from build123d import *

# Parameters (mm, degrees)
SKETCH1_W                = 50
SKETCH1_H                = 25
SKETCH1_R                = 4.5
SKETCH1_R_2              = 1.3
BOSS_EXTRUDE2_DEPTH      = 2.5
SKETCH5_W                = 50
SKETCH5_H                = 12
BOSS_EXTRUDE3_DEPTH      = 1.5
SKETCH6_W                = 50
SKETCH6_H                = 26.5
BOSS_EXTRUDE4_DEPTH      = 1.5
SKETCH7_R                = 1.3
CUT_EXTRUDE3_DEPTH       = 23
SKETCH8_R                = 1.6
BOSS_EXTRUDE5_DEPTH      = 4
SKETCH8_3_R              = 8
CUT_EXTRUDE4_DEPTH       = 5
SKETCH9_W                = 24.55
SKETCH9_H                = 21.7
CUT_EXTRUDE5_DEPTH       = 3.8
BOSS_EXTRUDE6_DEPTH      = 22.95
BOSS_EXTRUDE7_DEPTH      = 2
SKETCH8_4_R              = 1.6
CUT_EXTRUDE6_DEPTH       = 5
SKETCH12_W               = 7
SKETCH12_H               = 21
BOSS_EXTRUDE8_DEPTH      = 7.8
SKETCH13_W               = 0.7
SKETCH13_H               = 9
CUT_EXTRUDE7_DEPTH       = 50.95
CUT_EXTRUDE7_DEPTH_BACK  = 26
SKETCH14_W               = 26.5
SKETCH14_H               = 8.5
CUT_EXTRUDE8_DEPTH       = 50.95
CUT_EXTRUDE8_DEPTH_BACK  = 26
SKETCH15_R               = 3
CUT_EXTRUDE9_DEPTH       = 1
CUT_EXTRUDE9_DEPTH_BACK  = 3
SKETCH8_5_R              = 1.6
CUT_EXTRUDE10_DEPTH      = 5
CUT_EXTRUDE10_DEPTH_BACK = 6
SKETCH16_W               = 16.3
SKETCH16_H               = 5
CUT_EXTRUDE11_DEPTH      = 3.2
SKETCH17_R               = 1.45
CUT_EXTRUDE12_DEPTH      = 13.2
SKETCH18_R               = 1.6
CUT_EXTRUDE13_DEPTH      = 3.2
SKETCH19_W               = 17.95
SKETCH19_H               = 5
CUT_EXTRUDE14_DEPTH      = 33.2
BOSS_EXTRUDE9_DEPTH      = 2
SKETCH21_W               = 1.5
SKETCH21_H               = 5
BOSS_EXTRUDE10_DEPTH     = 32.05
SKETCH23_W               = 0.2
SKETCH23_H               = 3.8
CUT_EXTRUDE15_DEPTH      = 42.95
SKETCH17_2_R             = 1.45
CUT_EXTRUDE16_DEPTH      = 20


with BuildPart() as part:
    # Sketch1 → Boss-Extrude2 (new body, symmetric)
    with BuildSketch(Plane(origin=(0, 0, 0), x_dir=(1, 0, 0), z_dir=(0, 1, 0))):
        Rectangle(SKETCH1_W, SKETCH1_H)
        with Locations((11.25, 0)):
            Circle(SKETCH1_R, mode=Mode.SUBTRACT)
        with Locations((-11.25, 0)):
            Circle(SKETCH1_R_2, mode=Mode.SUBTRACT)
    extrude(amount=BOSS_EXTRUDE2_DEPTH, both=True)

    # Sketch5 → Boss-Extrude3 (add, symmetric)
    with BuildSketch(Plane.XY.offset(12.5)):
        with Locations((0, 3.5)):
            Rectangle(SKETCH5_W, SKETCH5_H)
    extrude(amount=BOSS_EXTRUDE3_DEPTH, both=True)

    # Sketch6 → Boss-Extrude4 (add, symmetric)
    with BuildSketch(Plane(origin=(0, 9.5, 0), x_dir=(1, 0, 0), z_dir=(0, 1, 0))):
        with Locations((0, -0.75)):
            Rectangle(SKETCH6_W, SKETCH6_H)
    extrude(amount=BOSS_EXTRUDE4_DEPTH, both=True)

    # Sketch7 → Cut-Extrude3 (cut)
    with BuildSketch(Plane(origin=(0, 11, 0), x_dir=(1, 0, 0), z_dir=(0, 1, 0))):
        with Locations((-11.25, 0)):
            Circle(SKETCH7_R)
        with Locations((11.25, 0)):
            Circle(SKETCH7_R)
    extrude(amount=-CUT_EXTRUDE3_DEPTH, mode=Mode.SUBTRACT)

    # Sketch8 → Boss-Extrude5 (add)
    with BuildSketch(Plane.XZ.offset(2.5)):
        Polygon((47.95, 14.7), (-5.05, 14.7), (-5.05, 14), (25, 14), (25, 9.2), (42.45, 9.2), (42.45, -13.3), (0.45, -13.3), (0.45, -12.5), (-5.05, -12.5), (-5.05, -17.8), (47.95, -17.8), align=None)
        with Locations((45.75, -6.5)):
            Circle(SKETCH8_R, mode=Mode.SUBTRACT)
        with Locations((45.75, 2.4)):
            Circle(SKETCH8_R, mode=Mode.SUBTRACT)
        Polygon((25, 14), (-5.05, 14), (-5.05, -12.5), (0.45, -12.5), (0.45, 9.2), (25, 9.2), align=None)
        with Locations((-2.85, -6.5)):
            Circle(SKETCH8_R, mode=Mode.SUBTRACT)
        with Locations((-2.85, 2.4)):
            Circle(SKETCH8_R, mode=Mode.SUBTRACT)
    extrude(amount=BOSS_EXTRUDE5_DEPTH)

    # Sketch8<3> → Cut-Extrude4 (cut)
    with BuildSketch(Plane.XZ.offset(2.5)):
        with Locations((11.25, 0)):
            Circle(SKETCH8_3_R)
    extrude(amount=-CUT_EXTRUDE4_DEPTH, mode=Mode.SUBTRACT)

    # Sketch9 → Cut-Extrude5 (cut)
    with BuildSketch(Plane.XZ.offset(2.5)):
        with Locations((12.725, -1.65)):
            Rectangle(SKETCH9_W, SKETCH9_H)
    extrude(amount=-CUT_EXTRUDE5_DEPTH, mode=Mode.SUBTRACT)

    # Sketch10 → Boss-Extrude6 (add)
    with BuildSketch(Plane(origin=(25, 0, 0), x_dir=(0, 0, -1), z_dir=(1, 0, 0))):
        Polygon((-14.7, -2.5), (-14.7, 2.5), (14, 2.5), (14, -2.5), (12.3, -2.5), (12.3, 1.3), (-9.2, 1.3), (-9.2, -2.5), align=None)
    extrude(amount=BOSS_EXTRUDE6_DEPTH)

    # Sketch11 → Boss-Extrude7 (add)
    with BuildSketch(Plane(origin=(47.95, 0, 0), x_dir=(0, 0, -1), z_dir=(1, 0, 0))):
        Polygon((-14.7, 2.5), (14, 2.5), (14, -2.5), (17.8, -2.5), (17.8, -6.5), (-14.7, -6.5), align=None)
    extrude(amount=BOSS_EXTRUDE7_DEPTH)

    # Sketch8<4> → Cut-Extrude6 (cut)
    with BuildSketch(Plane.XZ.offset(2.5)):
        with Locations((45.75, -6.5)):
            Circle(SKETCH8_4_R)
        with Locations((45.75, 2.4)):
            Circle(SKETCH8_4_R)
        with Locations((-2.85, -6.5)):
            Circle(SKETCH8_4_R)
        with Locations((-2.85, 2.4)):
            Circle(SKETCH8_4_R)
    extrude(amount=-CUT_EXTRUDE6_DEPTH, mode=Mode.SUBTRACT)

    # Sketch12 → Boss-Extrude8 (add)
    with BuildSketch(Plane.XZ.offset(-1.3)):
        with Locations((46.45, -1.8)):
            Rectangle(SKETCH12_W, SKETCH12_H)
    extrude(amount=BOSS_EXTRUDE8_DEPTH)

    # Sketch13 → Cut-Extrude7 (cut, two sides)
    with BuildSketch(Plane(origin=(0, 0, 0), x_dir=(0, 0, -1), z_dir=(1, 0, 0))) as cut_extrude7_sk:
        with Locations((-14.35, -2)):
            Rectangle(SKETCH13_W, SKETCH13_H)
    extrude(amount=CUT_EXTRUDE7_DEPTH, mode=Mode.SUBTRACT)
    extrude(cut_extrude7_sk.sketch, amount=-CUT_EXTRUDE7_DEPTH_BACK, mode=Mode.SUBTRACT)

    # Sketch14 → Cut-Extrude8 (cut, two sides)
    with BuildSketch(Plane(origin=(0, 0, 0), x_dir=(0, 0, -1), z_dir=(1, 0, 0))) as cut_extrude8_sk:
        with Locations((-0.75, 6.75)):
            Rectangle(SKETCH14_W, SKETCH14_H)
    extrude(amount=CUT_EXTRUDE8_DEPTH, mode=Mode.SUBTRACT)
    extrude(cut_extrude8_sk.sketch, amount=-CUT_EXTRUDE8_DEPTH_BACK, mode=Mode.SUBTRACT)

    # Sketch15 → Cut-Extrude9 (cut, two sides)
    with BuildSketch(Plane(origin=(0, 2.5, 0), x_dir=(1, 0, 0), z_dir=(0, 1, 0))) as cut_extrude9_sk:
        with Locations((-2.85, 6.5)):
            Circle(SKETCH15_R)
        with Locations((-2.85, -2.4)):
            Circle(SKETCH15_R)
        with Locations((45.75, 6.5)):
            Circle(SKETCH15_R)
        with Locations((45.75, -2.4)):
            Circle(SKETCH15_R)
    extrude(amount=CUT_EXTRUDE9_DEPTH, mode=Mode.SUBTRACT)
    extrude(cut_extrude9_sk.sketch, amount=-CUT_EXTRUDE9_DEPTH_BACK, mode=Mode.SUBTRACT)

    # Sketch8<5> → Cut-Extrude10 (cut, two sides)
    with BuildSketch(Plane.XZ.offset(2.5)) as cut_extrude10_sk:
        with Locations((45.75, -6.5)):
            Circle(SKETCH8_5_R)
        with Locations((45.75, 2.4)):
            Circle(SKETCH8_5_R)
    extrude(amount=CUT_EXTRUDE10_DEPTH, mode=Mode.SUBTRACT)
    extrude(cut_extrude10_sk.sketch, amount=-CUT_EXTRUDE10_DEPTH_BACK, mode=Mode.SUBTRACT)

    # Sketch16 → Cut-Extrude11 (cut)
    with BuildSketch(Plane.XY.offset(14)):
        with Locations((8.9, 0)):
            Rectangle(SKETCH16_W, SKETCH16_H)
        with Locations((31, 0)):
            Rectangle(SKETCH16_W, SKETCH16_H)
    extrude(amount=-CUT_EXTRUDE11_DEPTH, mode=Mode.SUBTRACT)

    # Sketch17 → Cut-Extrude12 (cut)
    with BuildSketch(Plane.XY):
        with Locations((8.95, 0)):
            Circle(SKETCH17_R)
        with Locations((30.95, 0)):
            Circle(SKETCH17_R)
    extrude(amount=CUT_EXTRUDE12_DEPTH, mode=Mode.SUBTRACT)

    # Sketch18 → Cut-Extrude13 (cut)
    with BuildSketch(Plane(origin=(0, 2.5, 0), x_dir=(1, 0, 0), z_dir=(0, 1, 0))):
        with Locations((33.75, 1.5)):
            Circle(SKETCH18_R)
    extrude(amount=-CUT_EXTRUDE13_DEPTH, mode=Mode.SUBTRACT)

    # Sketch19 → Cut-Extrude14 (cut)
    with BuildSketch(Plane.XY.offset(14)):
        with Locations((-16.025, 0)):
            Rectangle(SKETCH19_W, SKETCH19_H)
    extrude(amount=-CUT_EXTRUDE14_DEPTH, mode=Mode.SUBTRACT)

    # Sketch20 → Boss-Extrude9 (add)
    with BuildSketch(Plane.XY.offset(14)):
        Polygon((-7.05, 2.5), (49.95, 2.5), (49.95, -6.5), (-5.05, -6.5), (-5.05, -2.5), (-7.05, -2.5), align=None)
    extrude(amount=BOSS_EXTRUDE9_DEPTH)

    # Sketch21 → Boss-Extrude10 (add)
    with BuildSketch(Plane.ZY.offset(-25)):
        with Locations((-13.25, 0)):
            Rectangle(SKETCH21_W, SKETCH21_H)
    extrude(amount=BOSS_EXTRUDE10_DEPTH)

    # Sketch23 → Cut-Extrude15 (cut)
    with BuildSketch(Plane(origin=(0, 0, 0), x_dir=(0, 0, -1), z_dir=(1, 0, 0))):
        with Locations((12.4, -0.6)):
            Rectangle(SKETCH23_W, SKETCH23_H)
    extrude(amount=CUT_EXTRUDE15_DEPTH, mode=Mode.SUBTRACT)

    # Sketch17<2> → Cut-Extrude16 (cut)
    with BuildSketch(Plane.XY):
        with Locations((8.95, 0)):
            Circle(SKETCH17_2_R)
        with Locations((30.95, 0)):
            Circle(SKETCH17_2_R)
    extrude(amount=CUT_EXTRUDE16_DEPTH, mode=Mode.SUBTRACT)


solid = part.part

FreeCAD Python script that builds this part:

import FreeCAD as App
import Part
import Sketcher
Q = App.Units.Quantity

doc = App.newDocument("Part")
params = doc.addObject("Spreadsheet::Sheet", "Params")
for row, (alias, value) in enumerate([
    ("sketch1_diameter", "9 mm"),
    ("sketch1_diameter2", "2.6 mm"),
    ("sketch1_width", "50 mm"),
    ("sketch1_height", "25 mm"),
    ("pad1_length", "5 mm"),
    ("sketch2_width", "50 mm"),
    ("sketch2_height", "12 mm"),
    ("pad2_length", "3 mm"),
    ("sketch3_width", "50 mm"),
    ("sketch3_height", "26.5 mm"),
    ("pad3_length", "3 mm"),
    ("sketch4_diameter", "2.6 mm"),
    ("pocket1_length", "23 mm"),
    ("sketch5_diameter", "3.2 mm"),
    ("sketch5_width", "53 mm"),
    ("sketch5_width2", "42 mm"),
    ("sketch5_height", "32.5 mm"),
    ("sketch5_height2", "22.5 mm"),
    ("pad4_length", "4 mm"),
    ("sketch6_diameter", "16 mm"),
    ("pocket2_length", "5 mm"),
    ("sketch7_height", "21.7 mm"),
    ("sketch7_width", "24.55 mm"),
    ("pocket3_length", "3.8 mm"),
    ("sketch8_width", "5 mm"),
    ("sketch8_width2", "3.8 mm"),
    ("sketch8_height", "5.5 mm"),
    ("sketch8_height2", "21.5 mm"),
    ("sketch8_height3", "1.7 mm"),
    ("pad5_length", "22.95 mm"),
    ("sketch9_width", "9 mm"),
    ("sketch9_width2", "4 mm"),
    ("sketch9_height", "28.7 mm"),
    ("sketch9_height2", "32.5 mm"),
    ("pad6_length", "2 mm"),
    ("sketch10_diameter", "3.2 mm"),
    ("pocket4_length", "5 mm"),
    ("sketch11_width", "7 mm"),
    ("sketch11_height", "21 mm"),
    ("pad7_length", "7.8 mm"),
    ("sketch12_width", "9 mm"),
    ("sketch12_height", "0.7 mm"),
    ("sketch13_width", "8.5 mm"),
    ("sketch13_height", "26.5 mm"),
    ("sketch14_diameter", "6 mm"),
    ("pocket7_length", "1 mm"),
    ("pocket7_length2", "3 mm"),
    ("sketch15_diameter", "3.2 mm"),
    ("sketch16_height", "5 mm"),
    ("sketch16_width", "16.3 mm"),
    ("pocket9_length", "3.2 mm"),
    ("sketch17_diameter", "2.9 mm"),
    ("pocket10_length", "13.2 mm"),
    ("sketch18_diameter", "3.2 mm"),
    ("pocket11_length", "3.2 mm"),
    ("sketch19_height", "5 mm"),
    ("sketch19_width", "17.95 mm"),
    ("pocket12_length", "33.2 mm"),
    ("sketch20_width", "57 mm"),
    ("sketch20_width2", "2 mm"),
    ("sketch20_height", "5 mm"),
    ("sketch20_height2", "4 mm"),
    ("pad8_length", "2 mm"),
    ("sketch21_width", "5 mm"),
    ("sketch21_height", "1.5 mm"),
    ("pad9_length", "32.05 mm"),
    ("sketch22_width", "3.8 mm"),
    ("sketch22_height", "0.2 mm"),
    ("pocket13_length", "42.95 mm"),
    ("sketch23_diameter", "2.9 mm"),
    ("pocket14_length", "20 mm"),
], start=1):
    params.set(f"A{row}", alias)
    params.set(f"B{row}", "=" + value)
    params.setAlias(f"B{row}", alias)

body = doc.addObject("PartDesign::Body", "Body")

# Sketch on XZ plane
sketch1 = body.newObject("Sketcher::SketchObject", "Sketch")
sketch1.AttachmentSupport = (doc.getObject("XZ_Plane"), [""])
sketch1.MapMode = "FlatFace"
sketch1.addGeometry([
    Part.LineSegment(App.Vector(-25, -12.5, 0), App.Vector(-25, 12.5, 0)),  # 0
    Part.LineSegment(App.Vector(-25, 12.5, 0), App.Vector(25, 12.5, 0)),  # 1
    Part.LineSegment(App.Vector(25, 12.5, 0), App.Vector(25, -12.5, 0)),  # 2
    Part.LineSegment(App.Vector(25, -12.5, 0), App.Vector(-25, -12.5, 0)),  # 3
    Part.Circle(App.Vector(-11.25, 0, 0), App.Vector(0, 0, 1), 1.3),  # 4
    Part.Circle(App.Vector(11.25, 0, 0), App.Vector(0, 0, 1), 4.5),  # 5
], False)
sketch1.addConstraint([
    Sketcher.Constraint("Coincident", 0, 2, 1, 1),
    Sketcher.Constraint("Coincident", 1, 2, 2, 1),
    Sketcher.Constraint("Coincident", 2, 2, 3, 1),
    Sketcher.Constraint("Coincident", 3, 2, 0, 1),
    Sketcher.Constraint("Vertical", 0),
    Sketcher.Constraint("Horizontal", 1),
    Sketcher.Constraint("Vertical", 2),
    Sketcher.Constraint("Horizontal", 3),
    Sketcher.Constraint("Symmetric", 4, 3, 5, 3, -1, 1),
    Sketcher.Constraint("Symmetric", 0, 2, 2, 2, -1, 1),
    Sketcher.Constraint("PointOnObject", 4, 3, -1),
    Sketcher.Constraint("Diameter", 5, Q("9 mm")),
    Sketcher.Constraint("Diameter", 4, Q("2.6 mm")),
    Sketcher.Constraint("DistanceX", 1, 1, 1, 2, Q("50 mm")),
    Sketcher.Constraint("DistanceY", 0, 1, 0, 2, Q("25 mm")),
    Sketcher.Constraint("DistanceX", 4, 3, 5, 3, Q("22.5 mm")),
])
sketch1.setExpression("Constraints[11]", "Params.sketch1_diameter")
sketch1.setExpression("Constraints[12]", "Params.sketch1_diameter2")
sketch1.setExpression("Constraints[13]", "Params.sketch1_width")
sketch1.setExpression("Constraints[14]", "Params.sketch1_height")
pad1 = body.newObject("PartDesign::Pad", "Pad")
pad1.Profile = sketch1
pad1.setExpression("Length", "Params.pad1_length")
pad1.Midplane = True

# Sketch on XY plane
sketch2 = body.newObject("Sketcher::SketchObject", "Sketch001")
sketch2.AttachmentSupport = (doc.getObject("XY_Plane"), [""])
sketch2.MapMode = "FlatFace"
sketch2.AttachmentOffset = App.Placement(App.Vector(0, 0, 12.5), App.Rotation())
sketch2.addGeometry([
    Part.LineSegment(App.Vector(-25, 9.5, 0), App.Vector(-25, -2.5, 0)),
    Part.LineSegment(App.Vector(-25, -2.5, 0), App.Vector(25, -2.5, 0)),
    Part.LineSegment(App.Vector(25, -2.5, 0), App.Vector(25, 9.5, 0)),
    Part.LineSegment(App.Vector(25, 9.5, 0), App.Vector(-25, 9.5, 0)),
], False)
sketch2.addConstraint([
    Sketcher.Constraint("Coincident", 0, 2, 1, 1),
    Sketcher.Constraint("Coincident", 1, 2, 2, 1),
    Sketcher.Constraint("Coincident", 2, 2, 3, 1),
    Sketcher.Constraint("Coincident", 3, 2, 0, 1),
    Sketcher.Constraint("Vertical", 0),
    Sketcher.Constraint("Horizontal", 1),
    Sketcher.Constraint("Vertical", 2),
    Sketcher.Constraint("Horizontal", 3),
    Sketcher.Constraint("DistanceX", 1, 1, 1, 2, Q("50 mm")),
    Sketcher.Constraint("DistanceY", 0, 2, 0, 1, Q("12 mm")),
    Sketcher.Constraint("DistanceX", 0, 2, -1, 1, Q("25 mm")),
    Sketcher.Constraint("DistanceY", 0, 2, -1, 1, Q("2.5 mm")),
])
sketch2.setExpression("Constraints[8]", "Params.sketch2_width")
sketch2.setExpression("Constraints[9]", "Params.sketch2_height")
pad2 = body.newObject("PartDesign::Pad", "Pad001")
pad2.Profile = sketch2
pad2.setExpression("Length", "Params.pad2_length")
pad2.Midplane = True

# Sketch on XZ plane
sketch3 = body.newObject("Sketcher::SketchObject", "Sketch002")
sketch3.AttachmentSupport = (doc.getObject("XZ_Plane"), [""])
sketch3.MapMode = "FlatFace"
sketch3.AttachmentOffset = App.Placement(App.Vector(0, 0, -9.5), App.Rotation())
sketch3.addGeometry([
    Part.LineSegment(App.Vector(-25, -12.5, 0), App.Vector(-25, 14, 0)),
    Part.LineSegment(App.Vector(-25, 14, 0), App.Vector(25, 14, 0)),
    Part.LineSegment(App.Vector(25, 14, 0), App.Vector(25, -12.5, 0)),
    Part.LineSegment(App.Vector(25, -12.5, 0), App.Vector(-25, -12.5, 0)),
], False)
sketch3.addConstraint([
    Sketcher.Constraint("Coincident", 0, 2, 1, 1),
    Sketcher.Constraint("Coincident", 1, 2, 2, 1),
    Sketcher.Constraint("Coincident", 2, 2, 3, 1),
    Sketcher.Constraint("Coincident", 3, 2, 0, 1),
    Sketcher.Constraint("Vertical", 0),
    Sketcher.Constraint("Horizontal", 1),
    Sketcher.Constraint("Vertical", 2),
    Sketcher.Constraint("Horizontal", 3),
    Sketcher.Constraint("DistanceX", 1, 1, 1, 2, Q("50 mm")),
    Sketcher.Constraint("DistanceY", 0, 1, 0, 2, Q("26.5 mm")),
    Sketcher.Constraint("DistanceX", 0, 2, -1, 1, Q("25 mm")),
    Sketcher.Constraint("DistanceY", -1, 1, 0, 2, Q("14 mm")),
])
sketch3.setExpression("Constraints[8]", "Params.sketch3_width")
sketch3.setExpression("Constraints[9]", "Params.sketch3_height")
pad3 = body.newObject("PartDesign::Pad", "Pad002")
pad3.Profile = sketch3
pad3.setExpression("Length", "Params.pad3_length")
pad3.Midplane = True

# Sketch on XZ plane
sketch4 = body.newObject("Sketcher::SketchObject", "Sketch003")
sketch4.AttachmentSupport = (doc.getObject("XZ_Plane"), [""])
sketch4.MapMode = "FlatFace"
sketch4.AttachmentOffset = App.Placement(App.Vector(0, 0, -11), App.Rotation())
sketch4.addGeometry([
    Part.Circle(App.Vector(-11.25, 0, 0), App.Vector(0, 0, 1), 1.3),
    Part.Circle(App.Vector(11.25, 0, 0), App.Vector(0, 0, 1), 1.3),
], False)
sketch4.addConstraint([
    Sketcher.Constraint("Equal", 0, 1),
    Sketcher.Constraint("Symmetric", 0, 3, 1, 3, -1, 1),
    Sketcher.Constraint("PointOnObject", 0, 3, -1),
    Sketcher.Constraint("Diameter", 0, Q("2.6 mm")),
    Sketcher.Constraint("DistanceX", 0, 3, 1, 3, Q("22.5 mm")),
])
sketch4.setExpression("Constraints[3]", "Params.sketch4_diameter")
pocket1 = body.newObject("PartDesign::Pocket", "Pocket")
pocket1.Profile = sketch4
pocket1.setExpression("Length", "Params.pocket1_length")
pocket1.Reversed = True

# Sketch on XZ plane
sketch5 = body.newObject("Sketcher::SketchObject", "Sketch004")
sketch5.AttachmentSupport = (doc.getObject("XZ_Plane"), [""])
sketch5.MapMode = "FlatFace"
sketch5.AttachmentOffset = App.Placement(App.Vector(0, 0, 2.5), App.Rotation())
sketch5.addGeometry([
    Part.LineSegment(App.Vector(47.95, 14.7, 0), App.Vector(-5.05, 14.7, 0)),  # 0
    Part.LineSegment(App.Vector(-5.05, 14.7, 0), App.Vector(-5.05, -17.8, 0)),  # 1
    Part.LineSegment(App.Vector(-5.05, -17.8, 0), App.Vector(47.95, -17.8, 0)),  # 2
    Part.LineSegment(App.Vector(47.95, -17.8, 0), App.Vector(47.95, 14.7, 0)),  # 3
    Part.Circle(App.Vector(-2.85, -6.5, 0), App.Vector(0, 0, 1), 1.6),  # 4
    Part.Circle(App.Vector(45.75, -6.5, 0), App.Vector(0, 0, 1), 1.6),  # 5
    Part.Circle(App.Vector(-2.85, 2.4, 0), App.Vector(0, 0, 1), 1.6),  # 6
    Part.LineSegment(App.Vector(42.45, 9.2, 0), App.Vector(42.45, -13.3, 0)),  # 7
    Part.LineSegment(App.Vector(42.45, -13.3, 0), App.Vector(0.45, -13.3, 0)),  # 8
    Part.LineSegment(App.Vector(0.45, -13.3, 0), App.Vector(0.45, 9.2, 0)),  # 9
    Part.LineSegment(App.Vector(0.45, 9.2, 0), App.Vector(42.45, 9.2, 0)),  # 10
    Part.Circle(App.Vector(45.75, 2.4, 0), App.Vector(0, 0, 1), 1.6),  # 11
], False)
sketch5.addConstraint([
    Sketcher.Constraint("Coincident", 0, 2, 1, 1),
    Sketcher.Constraint("Coincident", 1, 2, 2, 1),
    Sketcher.Constraint("Coincident", 2, 2, 3, 1),
    Sketcher.Constraint("Coincident", 3, 2, 0, 1),
    Sketcher.Constraint("Coincident", 7, 2, 8, 1),
    Sketcher.Constraint("Coincident", 8, 2, 9, 1),
    Sketcher.Constraint("Coincident", 9, 2, 10, 1),
    Sketcher.Constraint("Coincident", 10, 2, 7, 1),
    Sketcher.Constraint("Horizontal", 0),
    Sketcher.Constraint("Vertical", 1),
    Sketcher.Constraint("Horizontal", 2),
    Sketcher.Constraint("Vertical", 3),
    Sketcher.Constraint("Vertical", 7),
    Sketcher.Constraint("Horizontal", 8),
    Sketcher.Constraint("Vertical", 9),
    Sketcher.Constraint("Horizontal", 10),
    Sketcher.Constraint("Equal", 4, 5),
    Sketcher.Constraint("Equal", 5, 6),
    Sketcher.Constraint("Equal", 6, 11),
    Sketcher.Constraint("Horizontal", 4, 3, 5, 3),
    Sketcher.Constraint("Horizontal", 6, 3, 11, 3),
    Sketcher.Constraint("Vertical", 4, 3, 6, 3),
    Sketcher.Constraint("Vertical", 5, 3, 11, 3),
    Sketcher.Constraint("Diameter", 4, Q("3.2 mm")),
    Sketcher.Constraint("DistanceX", 0, 2, 0, 1, Q("53 mm")),
    Sketcher.Constraint("DistanceX", 8, 2, 8, 1, Q("42 mm")),
    Sketcher.Constraint("DistanceY", 1, 2, 1, 1, Q("32.5 mm")),
    Sketcher.Constraint("DistanceY", 7, 2, 7, 1, Q("22.5 mm")),
    Sketcher.Constraint("DistanceY", 7, 2, 3, 2, Q("28 mm")),
    Sketcher.Constraint("DistanceY", 4, 3, -1, 1, Q("6.5 mm")),
    Sketcher.Constraint("DistanceY", -1, 1, 6, 3, Q("2.4 mm")),
    Sketcher.Constraint("DistanceY", -1, 1, 0, 2, Q("14.7 mm")),
    Sketcher.Constraint("DistanceX", 4, 3, 5, 3, Q("48.6 mm")),
    Sketcher.Constraint("DistanceX", 0, 2, 6, 3, Q("2.2 mm")),
    Sketcher.Constraint("DistanceX", 7, 2, 2, 2, Q("5.5 mm")),
    Sketcher.Constraint("DistanceX", 4, 3, -1, 1, Q("2.85 mm")),
])
sketch5.setExpression("Constraints[23]", "Params.sketch5_diameter")
sketch5.setExpression("Constraints[24]", "Params.sketch5_width")
sketch5.setExpression("Constraints[25]", "Params.sketch5_width2")
sketch5.setExpression("Constraints[26]", "Params.sketch5_height")
sketch5.setExpression("Constraints[27]", "Params.sketch5_height2")
pad4 = body.newObject("PartDesign::Pad", "Pad003")
pad4.Profile = sketch5
pad4.setExpression("Length", "Params.pad4_length")

# Sketch on XZ plane
sketch6 = body.newObject("Sketcher::SketchObject", "Sketch005")
sketch6.AttachmentSupport = (doc.getObject("XZ_Plane"), [""])
sketch6.MapMode = "FlatFace"
sketch6.AttachmentOffset = App.Placement(App.Vector(0, 0, 2.5), App.Rotation())
sketch6.addGeometry(Part.Circle(App.Vector(11.25, 0, 0), App.Vector(0, 0, 1), 8), False)
sketch6.addConstraint([
    Sketcher.Constraint("PointOnObject", 0, 3, -1),
    Sketcher.Constraint("Diameter", 0, Q("16 mm")),
    Sketcher.Constraint("DistanceX", -1, 1, 0, 3, Q("11.25 mm")),
])
sketch6.setExpression("Constraints[1]", "Params.sketch6_diameter")
pocket2 = body.newObject("PartDesign::Pocket", "Pocket001")
pocket2.Profile = sketch6
pocket2.setExpression("Length", "Params.pocket2_length")

# Sketch on XZ plane
sketch7 = body.newObject("Sketcher::SketchObject", "Sketch006")
sketch7.AttachmentSupport = (doc.getObject("XZ_Plane"), [""])
sketch7.MapMode = "FlatFace"
sketch7.AttachmentOffset = App.Placement(App.Vector(0, 0, 2.5), App.Rotation())
sketch7.addGeometry([
    Part.LineSegment(App.Vector(0.45, 9.2, 0), App.Vector(0.45, -12.5, 0)),
    Part.LineSegment(App.Vector(0.45, -12.5, 0), App.Vector(25, -12.5, 0)),
    Part.LineSegment(App.Vector(25, -12.5, 0), App.Vector(25, 9.2, 0)),
    Part.LineSegment(App.Vector(25, 9.2, 0), App.Vector(0.45, 9.2, 0)),
], False)
sketch7.addConstraint([
    Sketcher.Constraint("Coincident", 0, 2, 1, 1),
    Sketcher.Constraint("Coincident", 1, 2, 2, 1),
    Sketcher.Constraint("Coincident", 2, 2, 3, 1),
    Sketcher.Constraint("Coincident", 3, 2, 0, 1),
    Sketcher.Constraint("Vertical", 0),
    Sketcher.Constraint("Horizontal", 1),
    Sketcher.Constraint("Vertical", 2),
    Sketcher.Constraint("Horizontal", 3),
    Sketcher.Constraint("DistanceY", 0, 2, 0, 1, Q("21.7 mm")),
    Sketcher.Constraint("DistanceX", -1, 1, 1, 2, Q("25 mm")),
    Sketcher.Constraint("DistanceX", 1, 1, 1, 2, Q("24.55 mm")),
    Sketcher.Constraint("DistanceY", 0, 2, -1, 1, Q("12.5 mm")),
])
sketch7.setExpression("Constraints[8]", "Params.sketch7_height")
sketch7.setExpression("Constraints[10]", "Params.sketch7_width")
pocket3 = body.newObject("PartDesign::Pocket", "Pocket002")
pocket3.Profile = sketch7
pocket3.setExpression("Length", "Params.pocket3_length")

# Sketch on YZ plane
sketch8 = body.newObject("Sketcher::SketchObject", "Sketch007")
sketch8.AttachmentSupport = (doc.getObject("YZ_Plane"), [""])
sketch8.MapMode = "FlatFace"
sketch8.AttachmentOffset = App.Placement(App.Vector(0, 0, 25), App.Rotation())
sketch8.addGeometry([
    Part.LineSegment(App.Vector(2.5, 14.7, 0), App.Vector(-2.5, 14.7, 0)),  # 0
    Part.LineSegment(App.Vector(-2.5, 14.7, 0), App.Vector(-2.5, 9.2, 0)),  # 1
    Part.LineSegment(App.Vector(-2.5, 9.2, 0), App.Vector(1.3, 9.2, 0)),  # 2
    Part.LineSegment(App.Vector(1.3, 9.2, 0), App.Vector(1.3, -12.3, 0)),  # 3
    Part.LineSegment(App.Vector(1.3, -12.3, 0), App.Vector(-2.5, -12.3, 0)),  # 4
    Part.LineSegment(App.Vector(-2.5, -12.3, 0), App.Vector(-2.5, -14, 0)),  # 5
    Part.LineSegment(App.Vector(-2.5, -14, 0), App.Vector(2.5, -14, 0)),  # 6
    Part.LineSegment(App.Vector(2.5, -14, 0), App.Vector(2.5, 14.7, 0)),  # 7
], False)
sketch8.addConstraint([
    Sketcher.Constraint("Coincident", 0, 2, 1, 1),
    Sketcher.Constraint("Coincident", 1, 2, 2, 1),
    Sketcher.Constraint("Coincident", 2, 2, 3, 1),
    Sketcher.Constraint("Coincident", 3, 2, 4, 1),
    Sketcher.Constraint("Coincident", 4, 2, 5, 1),
    Sketcher.Constraint("Coincident", 5, 2, 6, 1),
    Sketcher.Constraint("Coincident", 6, 2, 7, 1),
    Sketcher.Constraint("Coincident", 7, 2, 0, 1),
    Sketcher.Constraint("Horizontal", 0),
    Sketcher.Constraint("Vertical", 1),
    Sketcher.Constraint("Horizontal", 2),
    Sketcher.Constraint("Vertical", 3),
    Sketcher.Constraint("Horizontal", 4),
    Sketcher.Constraint("Vertical", 5),
    Sketcher.Constraint("Horizontal", 6),
    Sketcher.Constraint("Vertical", 7),
    Sketcher.Constraint("Vertical", 1, 2, 4, 2),
    Sketcher.Constraint("DistanceX", 0, 2, 0, 1, Q("5 mm")),
    Sketcher.Constraint("DistanceX", 2, 1, 2, 2, Q("3.8 mm")),
    Sketcher.Constraint("DistanceY", 1, 2, 1, 1, Q("5.5 mm")),
    Sketcher.Constraint("DistanceY", 3, 2, 3, 1, Q("21.5 mm")),
    Sketcher.Constraint("DistanceY", 5, 2, 5, 1, Q("1.7 mm")),
    Sketcher.Constraint("DistanceY", 5, 2, -1, 1, Q("14 mm")),
    Sketcher.Constraint("DistanceX", 0, 2, -1, 1, Q("2.5 mm")),
])
sketch8.setExpression("Constraints[17]", "Params.sketch8_width")
sketch8.setExpression("Constraints[18]", "Params.sketch8_width2")
sketch8.setExpression("Constraints[19]", "Params.sketch8_height")
sketch8.setExpression("Constraints[20]", "Params.sketch8_height2")
sketch8.setExpression("Constraints[21]", "Params.sketch8_height3")
pad5 = body.newObject("PartDesign::Pad", "Pad004")
pad5.Profile = sketch8
pad5.setExpression("Length", "Params.pad5_length")

# Sketch on YZ plane
sketch9 = body.newObject("Sketcher::SketchObject", "Sketch008")
sketch9.AttachmentSupport = (doc.getObject("YZ_Plane"), [""])
sketch9.MapMode = "FlatFace"
sketch9.AttachmentOffset = App.Placement(App.Vector(0, 0, 47.95), App.Rotation())
sketch9.addGeometry([
    Part.LineSegment(App.Vector(2.5, -14, 0), App.Vector(2.5, 14.7, 0)),  # 0
    Part.LineSegment(App.Vector(2.5, 14.7, 0), App.Vector(-6.5, 14.7, 0)),  # 1
    Part.LineSegment(App.Vector(-6.5, 14.7, 0), App.Vector(-6.5, -17.8, 0)),  # 2
    Part.LineSegment(App.Vector(-6.5, -17.8, 0), App.Vector(-2.5, -17.8, 0)),  # 3
    Part.LineSegment(App.Vector(-2.5, -17.8, 0), App.Vector(-2.5, -14, 0)),  # 4
    Part.LineSegment(App.Vector(-2.5, -14, 0), App.Vector(2.5, -14, 0)),  # 5
], False)
sketch9.addConstraint([
    Sketcher.Constraint("Coincident", 0, 2, 1, 1),
    Sketcher.Constraint("Coincident", 1, 2, 2, 1),
    Sketcher.Constraint("Coincident", 2, 2, 3, 1),
    Sketcher.Constraint("Coincident", 3, 2, 4, 1),
    Sketcher.Constraint("Coincident", 4, 2, 5, 1),
    Sketcher.Constraint("Coincident", 5, 2, 0, 1),
    Sketcher.Constraint("Vertical", 0),
    Sketcher.Constraint("Horizontal", 1),
    Sketcher.Constraint("Vertical", 2),
    Sketcher.Constraint("Horizontal", 3),
    Sketcher.Constraint("Vertical", 4),
    Sketcher.Constraint("Horizontal", 5),
    Sketcher.Constraint("DistanceX", 1, 2, 1, 1, Q("9 mm")),
    Sketcher.Constraint("DistanceX", 3, 1, 3, 2, Q("4 mm")),
    Sketcher.Constraint("DistanceY", 0, 1, 0, 2, Q("28.7 mm")),
    Sketcher.Constraint("DistanceY", 2, 2, 2, 1, Q("32.5 mm")),
    Sketcher.Constraint("DistanceY", 4, 2, -1, 1, Q("14 mm")),
    Sketcher.Constraint("DistanceX", -1, 1, 0, 2, Q("2.5 mm")),
])
sketch9.setExpression("Constraints[12]", "Params.sketch9_width")
sketch9.setExpression("Constraints[13]", "Params.sketch9_width2")
sketch9.setExpression("Constraints[14]", "Params.sketch9_height")
sketch9.setExpression("Constraints[15]", "Params.sketch9_height2")
pad6 = body.newObject("PartDesign::Pad", "Pad005")
pad6.Profile = sketch9
pad6.setExpression("Length", "Params.pad6_length")

# Sketch on XZ plane
sketch10 = body.newObject("Sketcher::SketchObject", "Sketch009")
sketch10.AttachmentSupport = (doc.getObject("XZ_Plane"), [""])
sketch10.MapMode = "FlatFace"
sketch10.AttachmentOffset = App.Placement(App.Vector(0, 0, 2.5), App.Rotation())
sketch10.addGeometry([
    Part.Circle(App.Vector(45.75, -6.5, 0), App.Vector(0, 0, 1), 1.6),
    Part.Circle(App.Vector(45.75, 2.4, 0), App.Vector(0, 0, 1), 1.6),
    Part.Circle(App.Vector(-2.85, -6.5, 0), App.Vector(0, 0, 1), 1.6),
    Part.Circle(App.Vector(-2.85, 2.4, 0), App.Vector(0, 0, 1), 1.6),
], False)
sketch10.addConstraint([
    Sketcher.Constraint("Equal", 0, 1),
    Sketcher.Constraint("Equal", 1, 2),
    Sketcher.Constraint("Equal", 2, 3),
    Sketcher.Constraint("Horizontal", 0, 3, 2, 3),
    Sketcher.Constraint("Horizontal", 1, 3, 3, 3),
    Sketcher.Constraint("Vertical", 0, 3, 1, 3),
    Sketcher.Constraint("Vertical", 2, 3, 3, 3),
    Sketcher.Constraint("Diameter", 0, Q("3.2 mm")),
    Sketcher.Constraint("DistanceY", 0, 3, -1, 1, Q("6.5 mm")),
    Sketcher.Constraint("DistanceY", -1, 1, 1, 3, Q("2.4 mm")),
    Sketcher.Constraint("DistanceX", 2, 3, 0, 3, Q("48.6 mm")),
    Sketcher.Constraint("DistanceX", -1, 1, 0, 3, Q("45.75 mm")),
])
sketch10.setExpression("Constraints[7]", "Params.sketch10_diameter")
pocket4 = body.newObject("PartDesign::Pocket", "Pocket003")
pocket4.Profile = sketch10
pocket4.setExpression("Length", "Params.pocket4_length")

# Sketch on XZ plane
sketch11 = body.newObject("Sketcher::SketchObject", "Sketch010")
sketch11.AttachmentSupport = (doc.getObject("XZ_Plane"), [""])
sketch11.MapMode = "FlatFace"
sketch11.AttachmentOffset = App.Placement(App.Vector(0, 0, -1.3), App.Rotation())
sketch11.addGeometry([
    Part.LineSegment(App.Vector(42.95, 8.7, 0), App.Vector(42.95, -12.3, 0)),
    Part.LineSegment(App.Vector(42.95, -12.3, 0), App.Vector(49.95, -12.3, 0)),
    Part.LineSegment(App.Vector(49.95, -12.3, 0), App.Vector(49.95, 8.7, 0)),
    Part.LineSegment(App.Vector(49.95, 8.7, 0), App.Vector(42.95, 8.7, 0)),
], False)
sketch11.addConstraint([
    Sketcher.Constraint("Coincident", 0, 2, 1, 1),
    Sketcher.Constraint("Coincident", 1, 2, 2, 1),
    Sketcher.Constraint("Coincident", 2, 2, 3, 1),
    Sketcher.Constraint("Coincident", 3, 2, 0, 1),
    Sketcher.Constraint("Vertical", 0),
    Sketcher.Constraint("Horizontal", 1),
    Sketcher.Constraint("Vertical", 2),
    Sketcher.Constraint("Horizontal", 3),
    Sketcher.Constraint("DistanceX", 1, 1, 1, 2, Q("7 mm")),
    Sketcher.Constraint("DistanceY", 0, 2, 0, 1, Q("21 mm")),
    Sketcher.Constraint("DistanceY", 0, 2, -1, 1, Q("12.3 mm")),
    Sketcher.Constraint("DistanceX", -1, 1, 0, 2, Q("42.95 mm")),
])
sketch11.setExpression("Constraints[8]", "Params.sketch11_width")
sketch11.setExpression("Constraints[9]", "Params.sketch11_height")
pad7 = body.newObject("PartDesign::Pad", "Pad006")
pad7.Profile = sketch11
pad7.setExpression("Length", "Params.pad7_length")

# Sketch on YZ plane
sketch12 = body.newObject("Sketcher::SketchObject", "Sketch011")
sketch12.AttachmentSupport = (doc.getObject("YZ_Plane"), [""])
sketch12.MapMode = "FlatFace"
sketch12.addGeometry([
    Part.LineSegment(App.Vector(2.5, 14.7, 0), App.Vector(-6.5, 14.7, 0)),
    Part.LineSegment(App.Vector(-6.5, 14.7, 0), App.Vector(-6.5, 14, 0)),
    Part.LineSegment(App.Vector(-6.5, 14, 0), App.Vector(2.5, 14, 0)),
    Part.LineSegment(App.Vector(2.5, 14, 0), App.Vector(2.5, 14.7, 0)),
], False)
sketch12.addConstraint([
    Sketcher.Constraint("Coincident", 0, 2, 1, 1),
    Sketcher.Constraint("Coincident", 1, 2, 2, 1),
    Sketcher.Constraint("Coincident", 2, 2, 3, 1),
    Sketcher.Constraint("Coincident", 3, 2, 0, 1),
    Sketcher.Constraint("Horizontal", 0),
    Sketcher.Constraint("Vertical", 1),
    Sketcher.Constraint("Horizontal", 2),
    Sketcher.Constraint("Vertical", 3),
    Sketcher.Constraint("DistanceX", 0, 2, 0, 1, Q("9 mm")),
    Sketcher.Constraint("DistanceY", 1, 2, 1, 1, Q("0.7 mm")),
    Sketcher.Constraint("DistanceY", -1, 1, 1, 2, Q("14 mm")),
    Sketcher.Constraint("DistanceX", 0, 2, -1, 1, Q("6.5 mm")),
])
sketch12.setExpression("Constraints[8]", "Params.sketch12_width")
sketch12.setExpression("Constraints[9]", "Params.sketch12_height")
pocket5 = body.newObject("PartDesign::Pocket", "Pocket004")
pocket5.Profile = sketch12
pocket5.Type = "ThroughAll"
pocket5.Midplane = True

# Sketch on YZ plane
sketch13 = body.newObject("Sketcher::SketchObject", "Sketch012")
sketch13.AttachmentSupport = (doc.getObject("YZ_Plane"), [""])
sketch13.MapMode = "FlatFace"
sketch13.addGeometry([
    Part.LineSegment(App.Vector(11, 14, 0), App.Vector(2.5, 14, 0)),
    Part.LineSegment(App.Vector(2.5, 14, 0), App.Vector(2.5, -12.5, 0)),
    Part.LineSegment(App.Vector(2.5, -12.5, 0), App.Vector(11, -12.5, 0)),
    Part.LineSegment(App.Vector(11, -12.5, 0), App.Vector(11, 14, 0)),
], False)
sketch13.addConstraint([
    Sketcher.Constraint("Coincident", 0, 2, 1, 1),
    Sketcher.Constraint("Coincident", 1, 2, 2, 1),
    Sketcher.Constraint("Coincident", 2, 2, 3, 1),
    Sketcher.Constraint("Coincident", 3, 2, 0, 1),
    Sketcher.Constraint("Horizontal", 0),
    Sketcher.Constraint("Vertical", 1),
    Sketcher.Constraint("Horizontal", 2),
    Sketcher.Constraint("Vertical", 3),
    Sketcher.Constraint("DistanceX", 0, 2, 0, 1, Q("8.5 mm")),
    Sketcher.Constraint("DistanceY", 1, 2, 1, 1, Q("26.5 mm")),
    Sketcher.Constraint("DistanceY", -1, 1, 0, 2, Q("14 mm")),
    Sketcher.Constraint("DistanceX", -1, 1, 2, 2, Q("11 mm")),
])
sketch13.setExpression("Constraints[8]", "Params.sketch13_width")
sketch13.setExpression("Constraints[9]", "Params.sketch13_height")
pocket6 = body.newObject("PartDesign::Pocket", "Pocket005")
pocket6.Profile = sketch13
pocket6.Type = "ThroughAll"
pocket6.Midplane = True

# Sketch on XZ plane
sketch14 = body.newObject("Sketcher::SketchObject", "Sketch013")
sketch14.AttachmentSupport = (doc.getObject("XZ_Plane"), [""])
sketch14.MapMode = "FlatFace"
sketch14.AttachmentOffset = App.Placement(App.Vector(0, 0, -2.5), App.Rotation())
sketch14.addGeometry([
    Part.Circle(App.Vector(-2.85, -6.5, 0), App.Vector(0, 0, 1), 3),
    Part.Circle(App.Vector(-2.85, 2.4, 0), App.Vector(0, 0, 1), 3),
    Part.Circle(App.Vector(45.75, -6.5, 0), App.Vector(0, 0, 1), 3),
    Part.Circle(App.Vector(45.75, 2.4, 0), App.Vector(0, 0, 1), 3),
], False)
sketch14.addConstraint([
    Sketcher.Constraint("Equal", 0, 1),
    Sketcher.Constraint("Equal", 1, 2),
    Sketcher.Constraint("Equal", 2, 3),
    Sketcher.Constraint("Horizontal", 0, 3, 2, 3),
    Sketcher.Constraint("Horizontal", 1, 3, 3, 3),
    Sketcher.Constraint("Vertical", 0, 3, 1, 3),
    Sketcher.Constraint("Vertical", 2, 3, 3, 3),
    Sketcher.Constraint("Diameter", 0, Q("6 mm")),
    Sketcher.Constraint("DistanceY", 0, 3, -1, 1, Q("6.5 mm")),
    Sketcher.Constraint("DistanceY", -1, 1, 1, 3, Q("2.4 mm")),
    Sketcher.Constraint("DistanceX", 0, 3, 2, 3, Q("48.6 mm")),
    Sketcher.Constraint("DistanceX", 0, 3, -1, 1, Q("2.85 mm")),
])
sketch14.setExpression("Constraints[7]", "Params.sketch14_diameter")
pocket7 = body.newObject("PartDesign::Pocket", "Pocket006")
pocket7.Profile = sketch14
pocket7.Type = "TwoLengths"
pocket7.setExpression("Length", "Params.pocket7_length")
pocket7.setExpression("Length2", "Params.pocket7_length2")

# Sketch on XZ plane
sketch15 = body.newObject("Sketcher::SketchObject", "Sketch014")
sketch15.AttachmentSupport = (doc.getObject("XZ_Plane"), [""])
sketch15.MapMode = "FlatFace"
sketch15.AttachmentOffset = App.Placement(App.Vector(0, 0, 2.5), App.Rotation())
sketch15.addGeometry([
    Part.Circle(App.Vector(45.75, -6.5, 0), App.Vector(0, 0, 1), 1.6),
    Part.Circle(App.Vector(45.75, 2.4, 0), App.Vector(0, 0, 1), 1.6),
], False)
sketch15.addConstraint([
    Sketcher.Constraint("Equal", 0, 1),
    Sketcher.Constraint("Vertical", 0, 3, 1, 3),
    Sketcher.Constraint("Diameter", 0, Q("3.2 mm")),
    Sketcher.Constraint("DistanceY", 0, 3, -1, 1, Q("6.5 mm")),
    Sketcher.Constraint("DistanceY", -1, 1, 1, 3, Q("2.4 mm")),
    Sketcher.Constraint("DistanceX", -1, 1, 0, 3, Q("45.75 mm")),
])
sketch15.setExpression("Constraints[2]", "Params.sketch15_diameter")
pocket8 = body.newObject("PartDesign::Pocket", "Pocket007")
pocket8.Profile = sketch15
pocket8.Type = "ThroughAll"
pocket8.Midplane = True

# Sketch on XY plane
sketch16 = body.newObject("Sketcher::SketchObject", "Sketch015")
sketch16.AttachmentSupport = (doc.getObject("XY_Plane"), [""])
sketch16.MapMode = "FlatFace"
sketch16.AttachmentOffset = App.Placement(App.Vector(0, 0, 14), App.Rotation())
sketch16.addGeometry([
    Part.LineSegment(App.Vector(0.75, 2.5, 0), App.Vector(0.75, -2.5, 0)),  # 0
    Part.LineSegment(App.Vector(0.75, -2.5, 0), App.Vector(17.05, -2.5, 0)),  # 1
    Part.LineSegment(App.Vector(17.05, -2.5, 0), App.Vector(17.05, 2.5, 0)),  # 2
    Part.LineSegment(App.Vector(17.05, 2.5, 0), App.Vector(0.75, 2.5, 0)),  # 3
    Part.LineSegment(App.Vector(22.85, 2.5, 0), App.Vector(22.85, -2.5, 0)),  # 4
    Part.LineSegment(App.Vector(22.85, -2.5, 0), App.Vector(39.15, -2.5, 0)),  # 5
    Part.LineSegment(App.Vector(39.15, -2.5, 0), App.Vector(39.15, 2.5, 0)),  # 6
    Part.LineSegment(App.Vector(39.15, 2.5, 0), App.Vector(22.85, 2.5, 0)),  # 7
], False)
sketch16.addConstraint([
    Sketcher.Constraint("Coincident", 0, 2, 1, 1),
    Sketcher.Constraint("Coincident", 1, 2, 2, 1),
    Sketcher.Constraint("Coincident", 2, 2, 3, 1),
    Sketcher.Constraint("Coincident", 3, 2, 0, 1),
    Sketcher.Constraint("Coincident", 4, 2, 5, 1),
    Sketcher.Constraint("Coincident", 5, 2, 6, 1),
    Sketcher.Constraint("Coincident", 6, 2, 7, 1),
    Sketcher.Constraint("Coincident", 7, 2, 4, 1),
    Sketcher.Constraint("Vertical", 0),
    Sketcher.Constraint("Horizontal", 1),
    Sketcher.Constraint("Vertical", 2),
    Sketcher.Constraint("Horizontal", 3),
    Sketcher.Constraint("Vertical", 4),
    Sketcher.Constraint("Horizontal", 5),
    Sketcher.Constraint("Vertical", 6),
    Sketcher.Constraint("Horizontal", 7),
    Sketcher.Constraint("Horizontal", 1, 2, 4, 2),
    Sketcher.Constraint("Horizontal", 3, 2, 6, 2),
    Sketcher.Constraint("Equal", 3, 5),
    Sketcher.Constraint("DistanceY", 0, 2, 0, 1, Q("5 mm")),
    Sketcher.Constraint("DistanceX", 1, 1, 1, 2, Q("16.3 mm")),
    Sketcher.Constraint("DistanceY", 0, 2, -1, 1, Q("2.5 mm")),
    Sketcher.Constraint("DistanceX", 1, 2, 4, 2, Q("5.8 mm")),
    Sketcher.Constraint("DistanceX", -1, 1, 0, 2, Q("0.75 mm")),
])
sketch16.setExpression("Constraints[19]", "Params.sketch16_height")
sketch16.setExpression("Constraints[20]", "Params.sketch16_width")
pocket9 = body.newObject("PartDesign::Pocket", "Pocket008")
pocket9.Profile = sketch16
pocket9.setExpression("Length", "Params.pocket9_length")

# Sketch on XY plane
sketch17 = body.newObject("Sketcher::SketchObject", "Sketch016")
sketch17.AttachmentSupport = (doc.getObject("XY_Plane"), [""])
sketch17.MapMode = "FlatFace"
sketch17.addGeometry([
    Part.Circle(App.Vector(8.95, 0, 0), App.Vector(0, 0, 1), 1.45),
    Part.Circle(App.Vector(30.95, 0, 0), App.Vector(0, 0, 1), 1.45),
], False)
sketch17.addConstraint([
    Sketcher.Constraint("Equal", 0, 1),
    Sketcher.Constraint("PointOnObject", 0, 3, -1),
    Sketcher.Constraint("PointOnObject", 1, 3, -1),
    Sketcher.Constraint("Diameter", 0, Q("2.9 mm")),
    Sketcher.Constraint("DistanceX", 0, 3, 1, 3, Q("22 mm")),
    Sketcher.Constraint("DistanceX", -1, 1, 0, 3, Q("8.95 mm")),
])
sketch17.setExpression("Constraints[3]", "Params.sketch17_diameter")
pocket10 = body.newObject("PartDesign::Pocket", "Pocket009")
pocket10.Profile = sketch17
pocket10.setExpression("Length", "Params.pocket10_length")
pocket10.Reversed = True

# Sketch on XZ plane
sketch18 = body.newObject("Sketcher::SketchObject", "Sketch017")
sketch18.AttachmentSupport = (doc.getObject("XZ_Plane"), [""])
sketch18.MapMode = "FlatFace"
sketch18.AttachmentOffset = App.Placement(App.Vector(0, 0, -2.5), App.Rotation())
sketch18.addGeometry(Part.Circle(App.Vector(33.75, -1.5, 0), App.Vector(0, 0, 1), 1.6), False)
sketch18.addConstraint([
    Sketcher.Constraint("Diameter", 0, Q("3.2 mm")),
    Sketcher.Constraint("DistanceY", 0, 3, -1, 1, Q("1.5 mm")),
    Sketcher.Constraint("DistanceX", -1, 1, 0, 3, Q("33.75 mm")),
])
sketch18.setExpression("Constraints[0]", "Params.sketch18_diameter")
pocket11 = body.newObject("PartDesign::Pocket", "Pocket010")
pocket11.Profile = sketch18
pocket11.setExpression("Length", "Params.pocket11_length")
pocket11.Reversed = True

# Sketch on XY plane
sketch19 = body.newObject("Sketcher::SketchObject", "Sketch018")
sketch19.AttachmentSupport = (doc.getObject("XY_Plane"), [""])
sketch19.MapMode = "FlatFace"
sketch19.AttachmentOffset = App.Placement(App.Vector(0, 0, 14), App.Rotation())
sketch19.addGeometry([
    Part.LineSegment(App.Vector(-25, 2.5, 0), App.Vector(-25, -2.5, 0)),
    Part.LineSegment(App.Vector(-25, -2.5, 0), App.Vector(-7.05, -2.5, 0)),
    Part.LineSegment(App.Vector(-7.05, -2.5, 0), App.Vector(-7.05, 2.5, 0)),
    Part.LineSegment(App.Vector(-7.05, 2.5, 0), App.Vector(-25, 2.5, 0)),
], False)
sketch19.addConstraint([
    Sketcher.Constraint("Coincident", 0, 2, 1, 1),
    Sketcher.Constraint("Coincident", 1, 2, 2, 1),
    Sketcher.Constraint("Coincident", 2, 2, 3, 1),
    Sketcher.Constraint("Coincident", 3, 2, 0, 1),
    Sketcher.Constraint("Vertical", 0),
    Sketcher.Constraint("Horizontal", 1),
    Sketcher.Constraint("Vertical", 2),
    Sketcher.Constraint("Horizontal", 3),
    Sketcher.Constraint("DistanceY", 0, 2, 0, 1, Q("5 mm")),
    Sketcher.Constraint("DistanceX", 0, 2, -1, 1, Q("25 mm")),
    Sketcher.Constraint("DistanceX", 1, 1, 1, 2, Q("17.95 mm")),
    Sketcher.Constraint("DistanceY", 0, 2, -1, 1, Q("2.5 mm")),
])
sketch19.setExpression("Constraints[8]", "Params.sketch19_height")
sketch19.setExpression("Constraints[10]", "Params.sketch19_width")
pocket12 = body.newObject("PartDesign::Pocket", "Pocket011")
pocket12.Profile = sketch19
pocket12.setExpression("Length", "Params.pocket12_length")

# Sketch on XY plane
sketch20 = body.newObject("Sketcher::SketchObject", "Sketch019")
sketch20.AttachmentSupport = (doc.getObject("XY_Plane"), [""])
sketch20.MapMode = "FlatFace"
sketch20.AttachmentOffset = App.Placement(App.Vector(0, 0, 14), App.Rotation())
sketch20.addGeometry([
    Part.LineSegment(App.Vector(49.95, 2.5, 0), App.Vector(-7.05, 2.5, 0)),  # 0
    Part.LineSegment(App.Vector(-7.05, 2.5, 0), App.Vector(-7.05, -2.5, 0)),  # 1
    Part.LineSegment(App.Vector(-7.05, -2.5, 0), App.Vector(-5.05, -2.5, 0)),  # 2
    Part.LineSegment(App.Vector(-5.05, -2.5, 0), App.Vector(-5.05, -6.5, 0)),  # 3
    Part.LineSegment(App.Vector(-5.05, -6.5, 0), App.Vector(49.95, -6.5, 0)),  # 4
    Part.LineSegment(App.Vector(49.95, -6.5, 0), App.Vector(49.95, 2.5, 0)),  # 5
], False)
sketch20.addConstraint([
    Sketcher.Constraint("Coincident", 0, 2, 1, 1),
    Sketcher.Constraint("Coincident", 1, 2, 2, 1),
    Sketcher.Constraint("Coincident", 2, 2, 3, 1),
    Sketcher.Constraint("Coincident", 3, 2, 4, 1),
    Sketcher.Constraint("Coincident", 4, 2, 5, 1),
    Sketcher.Constraint("Coincident", 5, 2, 0, 1),
    Sketcher.Constraint("Horizontal", 0),
    Sketcher.Constraint("Vertical", 1),
    Sketcher.Constraint("Horizontal", 2),
    Sketcher.Constraint("Vertical", 3),
    Sketcher.Constraint("Horizontal", 4),
    Sketcher.Constraint("Vertical", 5),
    Sketcher.Constraint("DistanceX", 0, 2, 0, 1, Q("57 mm")),
    Sketcher.Constraint("DistanceX", 2, 1, 2, 2, Q("2 mm")),
    Sketcher.Constraint("DistanceY", 1, 2, 1, 1, Q("5 mm")),
    Sketcher.Constraint("DistanceY", 3, 2, 3, 1, Q("4 mm")),
    Sketcher.Constraint("DistanceY", -1, 1, 0, 2, Q("2.5 mm")),
    Sketcher.Constraint("DistanceX", 0, 2, -1, 1, Q("7.05 mm")),
])
sketch20.setExpression("Constraints[12]", "Params.sketch20_width")
sketch20.setExpression("Constraints[13]", "Params.sketch20_width2")
sketch20.setExpression("Constraints[14]", "Params.sketch20_height")
sketch20.setExpression("Constraints[15]", "Params.sketch20_height2")
pad8 = body.newObject("PartDesign::Pad", "Pad007")
pad8.Profile = sketch20
pad8.setExpression("Length", "Params.pad8_length")

# Sketch on YZ plane
sketch21 = body.newObject("Sketcher::SketchObject", "Sketch020")
sketch21.AttachmentSupport = (doc.getObject("YZ_Plane"), [""])
sketch21.MapMode = "FlatFace"
sketch21.AttachmentOffset = App.Placement(App.Vector(0, 0, 25), App.Rotation())
sketch21.addGeometry([
    Part.LineSegment(App.Vector(2.5, -14, 0), App.Vector(-2.5, -14, 0)),
    Part.LineSegment(App.Vector(-2.5, -14, 0), App.Vector(-2.5, -12.5, 0)),
    Part.LineSegment(App.Vector(-2.5, -12.5, 0), App.Vector(2.5, -12.5, 0)),
    Part.LineSegment(App.Vector(2.5, -12.5, 0), App.Vector(2.5, -14, 0)),
], False)
sketch21.addConstraint([
    Sketcher.Constraint("Coincident", 0, 2, 1, 1),
    Sketcher.Constraint("Coincident", 1, 2, 2, 1),
    Sketcher.Constraint("Coincident", 2, 2, 3, 1),
    Sketcher.Constraint("Coincident", 3, 2, 0, 1),
    Sketcher.Constraint("Horizontal", 0),
    Sketcher.Constraint("Vertical", 1),
    Sketcher.Constraint("Horizontal", 2),
    Sketcher.Constraint("Vertical", 3),
    Sketcher.Constraint("DistanceX", 0, 2, 0, 1, Q("5 mm")),
    Sketcher.Constraint("DistanceY", 1, 1, 1, 2, Q("1.5 mm")),
    Sketcher.Constraint("DistanceY", 0, 2, -1, 1, Q("14 mm")),
    Sketcher.Constraint("DistanceX", 0, 2, -1, 1, Q("2.5 mm")),
])
sketch21.setExpression("Constraints[8]", "Params.sketch21_width")
sketch21.setExpression("Constraints[9]", "Params.sketch21_height")
pad9 = body.newObject("PartDesign::Pad", "Pad008")
pad9.Profile = sketch21
pad9.setExpression("Length", "Params.pad9_length")
pad9.Reversed = True

# Sketch on YZ plane
sketch22 = body.newObject("Sketcher::SketchObject", "Sketch021")
sketch22.AttachmentSupport = (doc.getObject("YZ_Plane"), [""])
sketch22.MapMode = "FlatFace"
sketch22.addGeometry([
    Part.LineSegment(App.Vector(1.3, -12.3, 0), App.Vector(-2.5, -12.3, 0)),
    Part.LineSegment(App.Vector(-2.5, -12.3, 0), App.Vector(-2.5, -12.5, 0)),
    Part.LineSegment(App.Vector(-2.5, -12.5, 0), App.Vector(1.3, -12.5, 0)),
    Part.LineSegment(App.Vector(1.3, -12.5, 0), App.Vector(1.3, -12.3, 0)),
], False)
sketch22.addConstraint([
    Sketcher.Constraint("Coincident", 0, 2, 1, 1),
    Sketcher.Constraint("Coincident", 1, 2, 2, 1),
    Sketcher.Constraint("Coincident", 2, 2, 3, 1),
    Sketcher.Constraint("Coincident", 3, 2, 0, 1),
    Sketcher.Constraint("Horizontal", 0),
    Sketcher.Constraint("Vertical", 1),
    Sketcher.Constraint("Horizontal", 2),
    Sketcher.Constraint("Vertical", 3),
    Sketcher.Constraint("DistanceX", 0, 2, 0, 1, Q("3.8 mm")),
    Sketcher.Constraint("DistanceY", 1, 2, 1, 1, Q("0.2 mm")),
    Sketcher.Constraint("DistanceX", 0, 2, -1, 1, Q("2.5 mm")),
    Sketcher.Constraint("DistanceY", 0, 2, -1, 1, Q("12.3 mm")),
])
sketch22.setExpression("Constraints[8]", "Params.sketch22_width")
sketch22.setExpression("Constraints[9]", "Params.sketch22_height")
pocket13 = body.newObject("PartDesign::Pocket", "Pocket012")
pocket13.Profile = sketch22
pocket13.setExpression("Length", "Params.pocket13_length")
pocket13.Reversed = True

# Sketch on XY plane
sketch23 = body.newObject("Sketcher::SketchObject", "Sketch022")
sketch23.AttachmentSupport = (doc.getObject("XY_Plane"), [""])
sketch23.MapMode = "FlatFace"
sketch23.addGeometry([
    Part.Circle(App.Vector(8.95, 0, 0), App.Vector(0, 0, 1), 1.45),
    Part.Circle(App.Vector(30.95, 0, 0), App.Vector(0, 0, 1), 1.45),
], False)
sketch23.addConstraint([
    Sketcher.Constraint("Equal", 0, 1),
    Sketcher.Constraint("PointOnObject", 0, 3, -1),
    Sketcher.Constraint("PointOnObject", 1, 3, -1),
    Sketcher.Constraint("Diameter", 0, Q("2.9 mm")),
    Sketcher.Constraint("DistanceX", 0, 3, 1, 3, Q("22 mm")),
    Sketcher.Constraint("DistanceX", -1, 1, 0, 3, Q("8.95 mm")),
])
sketch23.setExpression("Constraints[3]", "Params.sketch23_diameter")
pocket14 = body.newObject("PartDesign::Pocket", "Pocket013")
pocket14.Profile = sketch23
pocket14.setExpression("Length", "Params.pocket14_length")
pocket14.Reversed = True

doc.recompute()
